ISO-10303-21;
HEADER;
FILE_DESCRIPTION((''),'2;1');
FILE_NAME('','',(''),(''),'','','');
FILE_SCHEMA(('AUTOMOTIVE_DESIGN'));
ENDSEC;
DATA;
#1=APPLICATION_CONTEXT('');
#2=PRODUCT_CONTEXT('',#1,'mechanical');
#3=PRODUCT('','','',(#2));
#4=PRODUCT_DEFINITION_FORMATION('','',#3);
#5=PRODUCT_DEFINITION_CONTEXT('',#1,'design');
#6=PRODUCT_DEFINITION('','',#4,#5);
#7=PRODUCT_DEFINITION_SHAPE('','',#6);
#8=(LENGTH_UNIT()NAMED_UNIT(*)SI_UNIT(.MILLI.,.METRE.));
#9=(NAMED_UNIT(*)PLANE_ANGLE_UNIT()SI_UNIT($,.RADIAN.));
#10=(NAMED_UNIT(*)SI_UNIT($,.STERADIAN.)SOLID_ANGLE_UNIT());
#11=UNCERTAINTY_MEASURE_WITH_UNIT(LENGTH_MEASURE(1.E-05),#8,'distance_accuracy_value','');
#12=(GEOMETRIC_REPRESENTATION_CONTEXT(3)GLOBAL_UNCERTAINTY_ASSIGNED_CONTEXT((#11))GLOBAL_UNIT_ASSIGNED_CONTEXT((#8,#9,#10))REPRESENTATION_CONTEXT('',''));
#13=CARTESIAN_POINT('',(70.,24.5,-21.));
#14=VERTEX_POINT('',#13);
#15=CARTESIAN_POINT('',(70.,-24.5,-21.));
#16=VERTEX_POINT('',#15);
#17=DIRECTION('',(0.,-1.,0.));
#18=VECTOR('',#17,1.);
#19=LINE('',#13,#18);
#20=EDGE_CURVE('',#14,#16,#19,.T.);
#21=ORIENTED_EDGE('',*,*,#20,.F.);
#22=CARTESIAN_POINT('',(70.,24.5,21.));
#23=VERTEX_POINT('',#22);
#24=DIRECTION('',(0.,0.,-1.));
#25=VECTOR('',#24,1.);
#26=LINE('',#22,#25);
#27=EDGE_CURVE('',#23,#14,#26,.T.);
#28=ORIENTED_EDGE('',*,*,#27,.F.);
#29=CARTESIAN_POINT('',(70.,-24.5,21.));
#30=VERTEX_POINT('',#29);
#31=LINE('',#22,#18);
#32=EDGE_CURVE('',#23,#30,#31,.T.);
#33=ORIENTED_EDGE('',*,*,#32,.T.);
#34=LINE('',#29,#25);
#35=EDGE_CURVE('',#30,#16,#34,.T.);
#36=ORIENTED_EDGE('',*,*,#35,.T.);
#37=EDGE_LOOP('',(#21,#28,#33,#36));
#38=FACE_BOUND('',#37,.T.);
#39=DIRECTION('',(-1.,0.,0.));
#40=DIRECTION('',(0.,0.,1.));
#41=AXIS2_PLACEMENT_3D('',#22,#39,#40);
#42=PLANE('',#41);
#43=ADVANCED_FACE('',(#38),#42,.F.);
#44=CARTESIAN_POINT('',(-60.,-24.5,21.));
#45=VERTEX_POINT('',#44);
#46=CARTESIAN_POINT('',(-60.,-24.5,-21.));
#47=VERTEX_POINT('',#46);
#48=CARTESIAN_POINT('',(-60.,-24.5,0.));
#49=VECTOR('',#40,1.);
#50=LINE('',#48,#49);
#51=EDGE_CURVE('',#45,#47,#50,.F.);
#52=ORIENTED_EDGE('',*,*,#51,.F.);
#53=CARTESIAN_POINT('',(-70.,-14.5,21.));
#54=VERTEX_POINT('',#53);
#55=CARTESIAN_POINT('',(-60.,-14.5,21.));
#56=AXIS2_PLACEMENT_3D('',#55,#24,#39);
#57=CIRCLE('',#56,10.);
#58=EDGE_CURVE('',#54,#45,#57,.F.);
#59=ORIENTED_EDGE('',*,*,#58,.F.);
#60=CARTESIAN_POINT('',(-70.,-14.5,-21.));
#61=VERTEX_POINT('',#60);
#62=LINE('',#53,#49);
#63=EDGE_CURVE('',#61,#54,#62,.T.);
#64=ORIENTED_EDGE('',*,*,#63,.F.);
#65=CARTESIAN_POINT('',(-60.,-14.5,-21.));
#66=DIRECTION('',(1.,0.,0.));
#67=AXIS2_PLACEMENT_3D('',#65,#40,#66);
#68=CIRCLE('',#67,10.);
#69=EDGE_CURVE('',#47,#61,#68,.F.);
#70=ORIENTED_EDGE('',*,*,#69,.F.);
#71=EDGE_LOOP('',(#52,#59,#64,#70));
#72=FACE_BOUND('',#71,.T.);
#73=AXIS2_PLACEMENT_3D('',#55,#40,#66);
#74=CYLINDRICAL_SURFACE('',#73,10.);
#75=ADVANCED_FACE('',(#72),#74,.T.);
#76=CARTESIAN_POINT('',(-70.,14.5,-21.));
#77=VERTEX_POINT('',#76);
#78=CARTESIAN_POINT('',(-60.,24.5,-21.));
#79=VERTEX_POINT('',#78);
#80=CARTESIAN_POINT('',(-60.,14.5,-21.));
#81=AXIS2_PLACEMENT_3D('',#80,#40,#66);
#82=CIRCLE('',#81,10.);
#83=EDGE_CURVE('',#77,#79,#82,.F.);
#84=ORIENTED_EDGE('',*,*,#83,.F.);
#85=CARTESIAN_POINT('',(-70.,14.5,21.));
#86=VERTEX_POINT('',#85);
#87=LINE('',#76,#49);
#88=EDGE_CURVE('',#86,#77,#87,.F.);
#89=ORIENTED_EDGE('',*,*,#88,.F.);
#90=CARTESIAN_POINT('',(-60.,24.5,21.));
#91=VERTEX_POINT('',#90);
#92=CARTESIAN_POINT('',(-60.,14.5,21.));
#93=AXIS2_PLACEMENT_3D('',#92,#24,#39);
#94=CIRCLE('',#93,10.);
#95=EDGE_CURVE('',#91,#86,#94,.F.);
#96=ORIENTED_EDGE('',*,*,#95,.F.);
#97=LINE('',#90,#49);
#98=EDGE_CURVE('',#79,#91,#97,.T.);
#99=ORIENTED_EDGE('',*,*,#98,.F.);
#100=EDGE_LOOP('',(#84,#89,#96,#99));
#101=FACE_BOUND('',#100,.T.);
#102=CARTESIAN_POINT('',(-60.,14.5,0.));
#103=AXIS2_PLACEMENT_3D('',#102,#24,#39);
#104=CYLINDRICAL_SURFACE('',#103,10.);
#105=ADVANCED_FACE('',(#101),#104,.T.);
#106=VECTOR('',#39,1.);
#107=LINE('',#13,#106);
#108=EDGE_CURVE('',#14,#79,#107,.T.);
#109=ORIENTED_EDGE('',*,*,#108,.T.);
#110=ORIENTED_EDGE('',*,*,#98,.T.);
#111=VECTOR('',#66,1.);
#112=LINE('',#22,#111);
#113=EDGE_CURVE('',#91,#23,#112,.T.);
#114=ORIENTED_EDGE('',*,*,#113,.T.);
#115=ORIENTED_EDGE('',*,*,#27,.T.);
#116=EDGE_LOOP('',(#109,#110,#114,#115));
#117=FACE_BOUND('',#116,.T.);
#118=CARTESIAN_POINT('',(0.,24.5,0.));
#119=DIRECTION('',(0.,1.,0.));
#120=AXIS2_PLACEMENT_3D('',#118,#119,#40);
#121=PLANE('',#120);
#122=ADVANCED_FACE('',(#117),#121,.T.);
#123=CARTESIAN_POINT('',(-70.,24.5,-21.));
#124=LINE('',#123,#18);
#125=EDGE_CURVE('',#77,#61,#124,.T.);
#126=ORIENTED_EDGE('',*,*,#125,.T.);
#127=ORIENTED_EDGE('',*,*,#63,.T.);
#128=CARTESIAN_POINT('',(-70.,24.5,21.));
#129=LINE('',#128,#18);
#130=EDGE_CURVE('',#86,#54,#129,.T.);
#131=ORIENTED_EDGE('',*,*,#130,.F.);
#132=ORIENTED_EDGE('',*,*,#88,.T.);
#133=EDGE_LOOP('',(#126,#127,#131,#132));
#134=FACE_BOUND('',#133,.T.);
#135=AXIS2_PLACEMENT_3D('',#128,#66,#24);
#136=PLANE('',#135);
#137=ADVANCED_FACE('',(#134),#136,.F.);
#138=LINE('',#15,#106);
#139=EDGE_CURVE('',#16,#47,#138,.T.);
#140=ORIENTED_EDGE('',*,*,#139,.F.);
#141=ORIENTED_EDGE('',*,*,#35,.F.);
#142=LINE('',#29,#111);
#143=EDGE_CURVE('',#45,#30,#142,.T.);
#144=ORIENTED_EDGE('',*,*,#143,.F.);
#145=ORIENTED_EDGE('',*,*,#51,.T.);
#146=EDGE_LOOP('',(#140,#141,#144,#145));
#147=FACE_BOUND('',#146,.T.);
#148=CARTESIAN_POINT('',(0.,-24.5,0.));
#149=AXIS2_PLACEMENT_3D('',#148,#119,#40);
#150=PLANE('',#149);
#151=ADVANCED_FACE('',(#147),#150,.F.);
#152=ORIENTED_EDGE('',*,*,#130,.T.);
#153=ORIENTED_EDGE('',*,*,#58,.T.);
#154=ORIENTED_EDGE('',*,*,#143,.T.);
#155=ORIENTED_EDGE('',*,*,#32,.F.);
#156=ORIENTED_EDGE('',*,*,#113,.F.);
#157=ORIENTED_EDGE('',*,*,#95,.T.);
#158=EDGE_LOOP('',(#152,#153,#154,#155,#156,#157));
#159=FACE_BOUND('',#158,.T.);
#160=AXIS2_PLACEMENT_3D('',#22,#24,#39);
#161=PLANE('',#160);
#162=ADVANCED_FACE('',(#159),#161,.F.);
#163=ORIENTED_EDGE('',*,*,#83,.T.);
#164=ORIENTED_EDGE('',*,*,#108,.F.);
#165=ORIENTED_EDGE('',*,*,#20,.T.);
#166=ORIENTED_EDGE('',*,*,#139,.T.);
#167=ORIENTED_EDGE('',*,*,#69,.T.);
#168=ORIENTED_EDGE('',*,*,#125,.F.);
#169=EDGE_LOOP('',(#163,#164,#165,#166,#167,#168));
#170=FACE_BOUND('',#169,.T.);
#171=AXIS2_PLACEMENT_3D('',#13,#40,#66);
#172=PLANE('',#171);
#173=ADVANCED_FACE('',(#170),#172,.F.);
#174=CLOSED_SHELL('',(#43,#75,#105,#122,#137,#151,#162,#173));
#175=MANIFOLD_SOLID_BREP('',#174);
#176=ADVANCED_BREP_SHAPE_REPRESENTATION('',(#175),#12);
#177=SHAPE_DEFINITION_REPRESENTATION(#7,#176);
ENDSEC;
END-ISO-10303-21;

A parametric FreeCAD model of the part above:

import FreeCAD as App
import Part
import Sketcher
from FreeCAD import Vector


def edges_at(feature, points):
    """Names of the edges that pass closest to the given points."""
    edges = feature.Shape.Edges
    near = lambda p: min(range(len(edges)), key=lambda i: edges[i].distToShape(Part.Vertex(*p))[0])
    return sorted({f"Edge{near(p) + 1}" for p in points})

doc = App.newDocument("Part")
body = doc.addObject("PartDesign::Body", "Body")

# Sketch on XZ plane
sketch1 = body.newObject("Sketcher::SketchObject", "Sketch")
sketch1.AttachmentSupport = (doc.getObject("XZ_Plane"), [""])
sketch1.MapMode = "FlatFace"
sketch1.addGeometry([
    Part.LineSegment(Vector(-70, -21, 0), Vector(-70, 21, 0)),
    Part.LineSegment(Vector(-70, 21, 0), Vector(70, 21, 0)),
    Part.LineSegment(Vector(70, 21, 0), Vector(70, -21, 0)),
    Part.LineSegment(Vector(70, -21, 0), Vector(-70, -21, 0)),
], False)
sketch1.addConstraint([
    Sketcher.Constraint("Coincident", 0, 2, 1, 1),
    Sketcher.Constraint("Coincident", 1, 2, 2, 1),
    Sketcher.Constraint("Coincident", 2, 2, 3, 1),
    Sketcher.Constraint("Coincident", 3, 2, 0, 1),
    Sketcher.Constraint("Vertical", 0),
    Sketcher.Constraint("Horizontal", 1),
    Sketcher.Constraint("Vertical", 2),
    Sketcher.Constraint("Horizontal", 3),
    Sketcher.Constraint("Symmetric", 0, 2, 2, 2, -1, 1),
    Sketcher.Constraint("DistanceX", 1, 1, 1, 2, 140.0),
    Sketcher.Constraint("DistanceY", 0, 1, 0, 2, 42.0),
])
pad1 = body.newObject("PartDesign::Pad", "Pad")
pad1.Profile = sketch1
pad1.Length = 49
pad1.Midplane = True
doc.recompute()

fillet = body.newObject("PartDesign::Fillet", "Fillet")
fillet.Base = (pad1, edges_at(pad1, [(-70, 24.5, 0), (-70, -24.5, 0)]))
fillet.Radius = 10

doc.recompute()
